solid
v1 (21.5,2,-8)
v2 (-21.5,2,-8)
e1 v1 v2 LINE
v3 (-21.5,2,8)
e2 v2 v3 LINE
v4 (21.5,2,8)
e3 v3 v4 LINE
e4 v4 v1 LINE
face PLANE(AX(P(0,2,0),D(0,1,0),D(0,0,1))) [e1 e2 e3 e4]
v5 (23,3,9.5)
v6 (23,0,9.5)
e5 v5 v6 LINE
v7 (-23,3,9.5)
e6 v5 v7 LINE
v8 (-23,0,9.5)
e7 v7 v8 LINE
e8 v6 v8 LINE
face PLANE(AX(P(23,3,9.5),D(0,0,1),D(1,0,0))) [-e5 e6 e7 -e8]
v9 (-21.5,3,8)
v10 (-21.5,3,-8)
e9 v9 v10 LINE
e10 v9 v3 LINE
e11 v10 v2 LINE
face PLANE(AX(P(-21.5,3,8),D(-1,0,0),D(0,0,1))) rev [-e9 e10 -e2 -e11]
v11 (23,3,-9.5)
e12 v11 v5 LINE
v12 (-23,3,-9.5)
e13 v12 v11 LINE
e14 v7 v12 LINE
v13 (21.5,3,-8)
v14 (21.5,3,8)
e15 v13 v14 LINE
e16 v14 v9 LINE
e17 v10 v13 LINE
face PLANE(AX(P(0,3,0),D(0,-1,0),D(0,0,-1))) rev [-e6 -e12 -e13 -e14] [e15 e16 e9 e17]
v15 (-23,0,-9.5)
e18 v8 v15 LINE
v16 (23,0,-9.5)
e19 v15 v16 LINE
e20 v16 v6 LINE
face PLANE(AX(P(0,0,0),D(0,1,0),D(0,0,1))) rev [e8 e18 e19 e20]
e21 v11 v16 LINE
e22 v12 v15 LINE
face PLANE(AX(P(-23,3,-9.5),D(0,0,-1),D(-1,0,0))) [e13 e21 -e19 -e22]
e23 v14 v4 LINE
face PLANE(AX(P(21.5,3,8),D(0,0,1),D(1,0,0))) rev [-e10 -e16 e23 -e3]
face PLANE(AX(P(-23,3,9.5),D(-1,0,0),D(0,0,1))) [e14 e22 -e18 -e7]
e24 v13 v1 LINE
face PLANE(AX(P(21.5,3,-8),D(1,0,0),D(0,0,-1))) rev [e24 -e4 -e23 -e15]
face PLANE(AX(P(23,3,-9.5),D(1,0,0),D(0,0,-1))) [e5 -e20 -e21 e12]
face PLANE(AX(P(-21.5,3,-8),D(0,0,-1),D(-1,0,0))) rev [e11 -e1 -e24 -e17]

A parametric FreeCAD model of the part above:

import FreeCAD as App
import Part
import Sketcher

V = App.Vector
Q = App.Units.Quantity

doc = App.newDocument("Part")
body = doc.addObject("PartDesign::Body", "Body")

# Sketch on XZ plane
sketch1 = doc.addObject("Sketcher::SketchObject", "Sketch")
body.addObject(sketch1)
sketch1.AttachmentSupport = (doc.XZ_Plane, [""])
sketch1.MapMode = "FlatFace"
sketch1.addGeometry(Part.LineSegment(V(-22, -8, 0), V(-22, 8, 0)), False)
sketch1.addGeometry(Part.LineSegment(V(-22, 8, 0), V(22, 8, 0)), False)
sketch1.addGeometry(Part.LineSegment(V(22, 8, 0), V(22, -8, 0)), False)
sketch1.addGeometry(Part.LineSegment(V(22, -8, 0), V(-22, -8, 0)), False)
sketch1.addConstraint(Sketcher.Constraint("Coincident", 0, 2, 1, 1))
sketch1.addConstraint(Sketcher.Constraint("Coincident", 1, 2, 2, 1))
sketch1.addConstraint(Sketcher.Constraint("Coincident", 2, 2, 3, 1))
sketch1.addConstraint(Sketcher.Constraint("Coincident", 3, 2, 0, 1))
sketch1.addConstraint(Sketcher.Constraint("Vertical", 0))
sketch1.addConstraint(Sketcher.Constraint("Horizontal", 1))
sketch1.addConstraint(Sketcher.Constraint("Vertical", 2))
sketch1.addConstraint(Sketcher.Constraint("Horizontal", 3))
sketch1.addConstraint(Sketcher.Constraint("Symmetric", 0, 2, 2, 2, -1, 1))
sketch1.addConstraint(Sketcher.Constraint("DistanceX", 1, 1, 1, 2, Q("43 mm")))
sketch1.addConstraint(Sketcher.Constraint("DistanceY", 0, 1, 0, 2, Q("16 mm")))
pad1 = doc.addObject("PartDesign::Pad", "Pad")
body.addObject(pad1)
pad1.Profile = sketch1
pad1.Length = 2
pad1.Reversed = True

# Sketch on XZ plane
sketch2 = doc.addObject("Sketcher::SketchObject", "Sketch001")
body.addObject(sketch2)
sketch2.AttachmentSupport = (doc.XZ_Plane, [""])
sketch2.MapMode = "FlatFace"
sketch2.addGeometry(Part.LineSegment(V(-23, 10, 0), V(-23, -10, 0)), False)
sketch2.addGeometry(Part.LineSegment(V(-23, -10, 0), V(23, -10, 0)), False)
sketch2.addGeometry(Part.LineSegment(V(23, -10, 0), V(23, 10, 0)), False)
sketch2.addGeometry(Part.LineSegment(V(23, 10, 0), V(-23, 10, 0)), False)
sketch2.addGeometry(Part.LineSegment(V(22, -8, 0), V(-22, -8, 0)), False)
sketch2.addGeometry(Part.LineSegment(V(-22, -8, 0), V(-22, 8, 0)), False)
sketch2.addGeometry(Part.LineSegment(V(-22, 8, 0), V(22, 8, 0)), False)
sketch2.addGeometry(Part.LineSegment(V(22, 8, 0), V(22, -8, 0)), False)
sketch2.addConstraint(Sketcher.Constraint("Coincident", 0, 2, 1, 1))
sketch2.addConstraint(Sketcher.Constraint("Coincident", 1, 2, 2, 1))
sketch2.addConstraint(Sketcher.Constraint("Coincident", 2, 2, 3, 1))
sketch2.addConstraint(Sketcher.Constraint("Coincident", 3, 2, 0, 1))
sketch2.addConstraint(Sketcher.Constraint("Coincident", 4, 2, 5, 1))
sketch2.addConstraint(Sketcher.Constraint("Coincident", 5, 2, 6, 1))
sketch2.addConstraint(Sketcher.Constraint("Coincident", 6, 2, 7, 1))
sketch2.addConstraint(Sketcher.Constraint("Coincident", 7, 2, 4, 1))
sketch2.addConstraint(Sketcher.Constraint("Vertical", 0))
sketch2.addConstraint(Sketcher.Constraint("Horizontal", 1))
sketch2.addConstraint(Sketcher.Constraint("Vertical", 2))
sketch2.addConstraint(Sketcher.Constraint("Horizontal", 3))
sketch2.addConstraint(Sketcher.Constraint("Horizontal", 4))
sketch2.addConstraint(Sketcher.Constraint("Vertical", 5))
sketch2.addConstraint(Sketcher.Constraint("Horizontal", 6))
sketch2.addConstraint(Sketcher.Constraint("Vertical", 7))
sketch2.addConstraint(Sketcher.Constraint("Symmetric", 0, 2, 2, 2, -1, 1))
sketch2.addConstraint(Sketcher.Constraint("Symmetric", 4, 2, 6, 2, -1, 1))
sketch2.addConstraint(Sketcher.Constraint("DistanceX", 1, 1, 1, 2, Q("46 mm")))
sketch2.addConstraint(Sketcher.Constraint("DistanceX", 4, 2, 4, 1, Q("43 mm")))
sketch2.addConstraint(Sketcher.Constraint("DistanceY", 0, 2, 0, 1, Q("19 mm")))
sketch2.addConstraint(Sketcher.Constraint("DistanceY", 5, 1, 5, 2, Q("16 mm")))
pad2 = doc.addObject("PartDesign::Pad", "Pad001")
body.addObject(pad2)
pad2.Profile = sketch2
pad2.Length = 3
pad2.Reversed = True

doc.recompute()
